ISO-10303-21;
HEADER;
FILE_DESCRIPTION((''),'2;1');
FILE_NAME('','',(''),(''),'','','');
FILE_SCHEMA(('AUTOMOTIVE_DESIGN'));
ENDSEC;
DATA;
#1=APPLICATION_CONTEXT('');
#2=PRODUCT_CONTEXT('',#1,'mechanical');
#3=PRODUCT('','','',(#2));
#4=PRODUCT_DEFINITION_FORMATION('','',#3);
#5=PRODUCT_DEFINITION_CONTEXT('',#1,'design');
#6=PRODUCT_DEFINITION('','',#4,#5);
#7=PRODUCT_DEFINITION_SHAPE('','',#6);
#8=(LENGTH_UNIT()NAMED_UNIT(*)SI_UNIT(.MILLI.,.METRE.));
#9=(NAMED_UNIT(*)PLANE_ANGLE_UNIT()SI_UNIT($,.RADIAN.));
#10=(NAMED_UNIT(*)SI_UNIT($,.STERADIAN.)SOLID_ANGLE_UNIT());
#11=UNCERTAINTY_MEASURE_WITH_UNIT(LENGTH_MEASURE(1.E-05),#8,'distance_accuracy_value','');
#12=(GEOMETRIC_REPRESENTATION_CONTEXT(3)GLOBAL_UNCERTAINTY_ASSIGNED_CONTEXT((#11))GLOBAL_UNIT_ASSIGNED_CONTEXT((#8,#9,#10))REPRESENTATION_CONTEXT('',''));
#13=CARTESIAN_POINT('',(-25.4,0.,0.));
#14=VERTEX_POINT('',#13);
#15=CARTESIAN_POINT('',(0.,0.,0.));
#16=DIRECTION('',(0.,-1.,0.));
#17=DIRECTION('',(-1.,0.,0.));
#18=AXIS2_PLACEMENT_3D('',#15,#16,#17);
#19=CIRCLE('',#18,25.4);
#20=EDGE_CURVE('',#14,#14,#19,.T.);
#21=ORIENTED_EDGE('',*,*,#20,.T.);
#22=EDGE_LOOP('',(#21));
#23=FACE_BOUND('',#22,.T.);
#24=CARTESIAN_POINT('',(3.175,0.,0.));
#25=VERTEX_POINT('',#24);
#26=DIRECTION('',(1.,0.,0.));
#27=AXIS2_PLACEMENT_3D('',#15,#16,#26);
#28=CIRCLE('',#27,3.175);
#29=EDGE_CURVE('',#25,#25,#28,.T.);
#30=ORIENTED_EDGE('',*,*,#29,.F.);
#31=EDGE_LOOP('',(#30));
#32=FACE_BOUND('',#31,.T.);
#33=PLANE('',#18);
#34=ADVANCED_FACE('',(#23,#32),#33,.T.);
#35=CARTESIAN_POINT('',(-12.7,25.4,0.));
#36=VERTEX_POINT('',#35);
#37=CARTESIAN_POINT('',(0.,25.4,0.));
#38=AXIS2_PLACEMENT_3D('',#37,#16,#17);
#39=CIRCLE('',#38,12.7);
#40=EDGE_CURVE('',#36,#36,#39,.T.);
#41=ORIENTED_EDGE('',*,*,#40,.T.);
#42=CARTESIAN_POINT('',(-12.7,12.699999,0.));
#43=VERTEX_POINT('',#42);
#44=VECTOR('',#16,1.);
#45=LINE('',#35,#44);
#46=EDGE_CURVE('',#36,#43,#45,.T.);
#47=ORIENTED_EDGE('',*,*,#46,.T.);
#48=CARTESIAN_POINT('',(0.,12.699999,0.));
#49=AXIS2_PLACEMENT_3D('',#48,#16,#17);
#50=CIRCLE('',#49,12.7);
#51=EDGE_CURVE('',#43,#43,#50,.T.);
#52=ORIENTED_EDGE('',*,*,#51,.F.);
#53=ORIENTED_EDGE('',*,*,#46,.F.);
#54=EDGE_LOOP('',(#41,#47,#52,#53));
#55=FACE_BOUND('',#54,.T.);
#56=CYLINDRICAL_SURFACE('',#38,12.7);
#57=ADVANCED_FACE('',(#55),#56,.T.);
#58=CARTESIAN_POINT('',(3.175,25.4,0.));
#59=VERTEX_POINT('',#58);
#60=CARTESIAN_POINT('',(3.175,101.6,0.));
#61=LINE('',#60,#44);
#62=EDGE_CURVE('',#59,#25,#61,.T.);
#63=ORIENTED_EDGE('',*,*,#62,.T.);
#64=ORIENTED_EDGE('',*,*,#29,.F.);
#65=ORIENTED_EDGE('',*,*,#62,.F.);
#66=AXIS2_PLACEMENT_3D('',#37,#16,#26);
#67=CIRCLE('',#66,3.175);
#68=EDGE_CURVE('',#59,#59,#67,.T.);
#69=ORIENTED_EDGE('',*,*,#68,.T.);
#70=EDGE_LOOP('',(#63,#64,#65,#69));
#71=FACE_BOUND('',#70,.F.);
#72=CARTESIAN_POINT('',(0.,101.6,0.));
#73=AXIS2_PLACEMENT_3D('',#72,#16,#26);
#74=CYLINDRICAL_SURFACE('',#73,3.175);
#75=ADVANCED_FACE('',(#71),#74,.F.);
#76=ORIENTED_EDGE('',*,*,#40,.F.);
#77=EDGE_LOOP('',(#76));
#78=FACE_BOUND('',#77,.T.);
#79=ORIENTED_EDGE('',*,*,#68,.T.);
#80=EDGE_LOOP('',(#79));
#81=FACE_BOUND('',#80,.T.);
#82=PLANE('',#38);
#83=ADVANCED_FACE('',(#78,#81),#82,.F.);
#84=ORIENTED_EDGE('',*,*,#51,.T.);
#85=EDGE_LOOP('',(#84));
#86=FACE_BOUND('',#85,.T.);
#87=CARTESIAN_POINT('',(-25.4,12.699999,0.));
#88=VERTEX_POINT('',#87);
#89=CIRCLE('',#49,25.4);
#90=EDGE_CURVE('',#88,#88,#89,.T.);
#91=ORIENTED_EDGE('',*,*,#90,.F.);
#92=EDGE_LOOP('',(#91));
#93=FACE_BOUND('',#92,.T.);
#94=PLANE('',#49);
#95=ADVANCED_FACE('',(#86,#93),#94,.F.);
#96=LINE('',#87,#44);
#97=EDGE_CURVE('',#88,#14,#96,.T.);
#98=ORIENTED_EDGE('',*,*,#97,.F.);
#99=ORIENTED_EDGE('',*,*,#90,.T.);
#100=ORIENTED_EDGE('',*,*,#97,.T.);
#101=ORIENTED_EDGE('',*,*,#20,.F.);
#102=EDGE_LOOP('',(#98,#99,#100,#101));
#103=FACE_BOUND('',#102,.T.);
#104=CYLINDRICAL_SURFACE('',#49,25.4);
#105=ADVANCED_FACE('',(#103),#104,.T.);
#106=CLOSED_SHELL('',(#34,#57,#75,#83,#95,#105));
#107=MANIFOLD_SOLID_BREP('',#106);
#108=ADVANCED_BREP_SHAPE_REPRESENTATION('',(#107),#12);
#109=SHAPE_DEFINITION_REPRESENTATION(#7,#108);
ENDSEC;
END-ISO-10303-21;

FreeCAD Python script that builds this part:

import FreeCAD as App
import Part
import Sketcher
from FreeCAD import Vector
Q = App.Units.Quantity

doc = App.newDocument("Part")
body = doc.addObject("PartDesign::Body", "Body")

sketch1 = body.newObject("Sketcher::SketchObject", "Sketch")
sketch1.AttachmentSupport = (doc.getObject("XY_Plane"), [""])
sketch1.MapMode = "FlatFace"
sketch1.addGeometry([
    Part.LineSegment(Vector(-25.4, 0, 0), Vector(0, 0, 0)),
    Part.LineSegment(Vector(0, 0, 0), Vector(0, 25.4, 0)),
    Part.LineSegment(Vector(0, 25.4, 0), Vector(-12.7, 25.4, 0)),
    Part.LineSegment(Vector(-12.7, 25.4, 0), Vector(-12.7, 12.699999, 0)),
    Part.LineSegment(Vector(-12.7, 12.699999, 0), Vector(-25.4, 12.699999, 0)),
    Part.LineSegment(Vector(-25.4, 12.699999, 0), Vector(-25.4, 0, 0)),
], False)
sketch1.addConstraint([
    Sketcher.Constraint("Coincident", 0, 2, 1, 1),
    Sketcher.Constraint("Coincident", 1, 2, 2, 1),
    Sketcher.Constraint("Coincident", 2, 2, 3, 1),
    Sketcher.Constraint("Coincident", 3, 2, 4, 1),
    Sketcher.Constraint("Coincident", 4, 2, 5, 1),
    Sketcher.Constraint("Coincident", 5, 2, 0, 1),
    Sketcher.Constraint("Horizontal", 0),
    Sketcher.Constraint("Vertical", 1),
    Sketcher.Constraint("Horizontal", 2),
    Sketcher.Constraint("Vertical", 3),
    Sketcher.Constraint("Horizontal", 4),
    Sketcher.Constraint("Vertical", 5),
    Sketcher.Constraint("Coincident", 0, 2, -1, 1),
    Sketcher.Constraint("Equal", 2, 4),
    Sketcher.Constraint("Equal", 0, 1),
    Sketcher.Constraint("Equal", 4, 3),
    Sketcher.Constraint("DistanceX", 0, 1, 0, 2, Q("1 in")),
])
revolution = body.newObject("PartDesign::Revolution", "Revolution")
revolution.Profile = sketch1
revolution.ReferenceAxis = (sketch1, ["V_Axis"])
revolution.Angle = 360

sketch2 = body.newObject("Sketcher::SketchObject", "Sketch001")
sketch2.AttachmentSupport = (doc.getObject("XZ_Plane"), [""])
sketch2.MapMode = "FlatFace"
sketch2.AttachmentOffset = App.Placement(Vector(0, 0, -1 * 25.4), App.Rotation())
sketch2.addGeometry(Part.Circle(Vector(0, 0, 0), Vector(0, 0, 1), 3.175), False)
sketch2.addConstraint([
    Sketcher.Constraint("Coincident", 0, 3, -1, 1),
    Sketcher.Constraint("Diameter", 0, Q("0.25 in")),
])
doc.recompute()
hole = body.newObject("PartDesign::Hole", "Hole")
hole.Profile = sketch2
hole.ThreadType = "None"
hole.Diameter = Q("0.25 in")
hole.DepthType = "ThroughAll"
hole.Reversed = True

doc.recompute()
